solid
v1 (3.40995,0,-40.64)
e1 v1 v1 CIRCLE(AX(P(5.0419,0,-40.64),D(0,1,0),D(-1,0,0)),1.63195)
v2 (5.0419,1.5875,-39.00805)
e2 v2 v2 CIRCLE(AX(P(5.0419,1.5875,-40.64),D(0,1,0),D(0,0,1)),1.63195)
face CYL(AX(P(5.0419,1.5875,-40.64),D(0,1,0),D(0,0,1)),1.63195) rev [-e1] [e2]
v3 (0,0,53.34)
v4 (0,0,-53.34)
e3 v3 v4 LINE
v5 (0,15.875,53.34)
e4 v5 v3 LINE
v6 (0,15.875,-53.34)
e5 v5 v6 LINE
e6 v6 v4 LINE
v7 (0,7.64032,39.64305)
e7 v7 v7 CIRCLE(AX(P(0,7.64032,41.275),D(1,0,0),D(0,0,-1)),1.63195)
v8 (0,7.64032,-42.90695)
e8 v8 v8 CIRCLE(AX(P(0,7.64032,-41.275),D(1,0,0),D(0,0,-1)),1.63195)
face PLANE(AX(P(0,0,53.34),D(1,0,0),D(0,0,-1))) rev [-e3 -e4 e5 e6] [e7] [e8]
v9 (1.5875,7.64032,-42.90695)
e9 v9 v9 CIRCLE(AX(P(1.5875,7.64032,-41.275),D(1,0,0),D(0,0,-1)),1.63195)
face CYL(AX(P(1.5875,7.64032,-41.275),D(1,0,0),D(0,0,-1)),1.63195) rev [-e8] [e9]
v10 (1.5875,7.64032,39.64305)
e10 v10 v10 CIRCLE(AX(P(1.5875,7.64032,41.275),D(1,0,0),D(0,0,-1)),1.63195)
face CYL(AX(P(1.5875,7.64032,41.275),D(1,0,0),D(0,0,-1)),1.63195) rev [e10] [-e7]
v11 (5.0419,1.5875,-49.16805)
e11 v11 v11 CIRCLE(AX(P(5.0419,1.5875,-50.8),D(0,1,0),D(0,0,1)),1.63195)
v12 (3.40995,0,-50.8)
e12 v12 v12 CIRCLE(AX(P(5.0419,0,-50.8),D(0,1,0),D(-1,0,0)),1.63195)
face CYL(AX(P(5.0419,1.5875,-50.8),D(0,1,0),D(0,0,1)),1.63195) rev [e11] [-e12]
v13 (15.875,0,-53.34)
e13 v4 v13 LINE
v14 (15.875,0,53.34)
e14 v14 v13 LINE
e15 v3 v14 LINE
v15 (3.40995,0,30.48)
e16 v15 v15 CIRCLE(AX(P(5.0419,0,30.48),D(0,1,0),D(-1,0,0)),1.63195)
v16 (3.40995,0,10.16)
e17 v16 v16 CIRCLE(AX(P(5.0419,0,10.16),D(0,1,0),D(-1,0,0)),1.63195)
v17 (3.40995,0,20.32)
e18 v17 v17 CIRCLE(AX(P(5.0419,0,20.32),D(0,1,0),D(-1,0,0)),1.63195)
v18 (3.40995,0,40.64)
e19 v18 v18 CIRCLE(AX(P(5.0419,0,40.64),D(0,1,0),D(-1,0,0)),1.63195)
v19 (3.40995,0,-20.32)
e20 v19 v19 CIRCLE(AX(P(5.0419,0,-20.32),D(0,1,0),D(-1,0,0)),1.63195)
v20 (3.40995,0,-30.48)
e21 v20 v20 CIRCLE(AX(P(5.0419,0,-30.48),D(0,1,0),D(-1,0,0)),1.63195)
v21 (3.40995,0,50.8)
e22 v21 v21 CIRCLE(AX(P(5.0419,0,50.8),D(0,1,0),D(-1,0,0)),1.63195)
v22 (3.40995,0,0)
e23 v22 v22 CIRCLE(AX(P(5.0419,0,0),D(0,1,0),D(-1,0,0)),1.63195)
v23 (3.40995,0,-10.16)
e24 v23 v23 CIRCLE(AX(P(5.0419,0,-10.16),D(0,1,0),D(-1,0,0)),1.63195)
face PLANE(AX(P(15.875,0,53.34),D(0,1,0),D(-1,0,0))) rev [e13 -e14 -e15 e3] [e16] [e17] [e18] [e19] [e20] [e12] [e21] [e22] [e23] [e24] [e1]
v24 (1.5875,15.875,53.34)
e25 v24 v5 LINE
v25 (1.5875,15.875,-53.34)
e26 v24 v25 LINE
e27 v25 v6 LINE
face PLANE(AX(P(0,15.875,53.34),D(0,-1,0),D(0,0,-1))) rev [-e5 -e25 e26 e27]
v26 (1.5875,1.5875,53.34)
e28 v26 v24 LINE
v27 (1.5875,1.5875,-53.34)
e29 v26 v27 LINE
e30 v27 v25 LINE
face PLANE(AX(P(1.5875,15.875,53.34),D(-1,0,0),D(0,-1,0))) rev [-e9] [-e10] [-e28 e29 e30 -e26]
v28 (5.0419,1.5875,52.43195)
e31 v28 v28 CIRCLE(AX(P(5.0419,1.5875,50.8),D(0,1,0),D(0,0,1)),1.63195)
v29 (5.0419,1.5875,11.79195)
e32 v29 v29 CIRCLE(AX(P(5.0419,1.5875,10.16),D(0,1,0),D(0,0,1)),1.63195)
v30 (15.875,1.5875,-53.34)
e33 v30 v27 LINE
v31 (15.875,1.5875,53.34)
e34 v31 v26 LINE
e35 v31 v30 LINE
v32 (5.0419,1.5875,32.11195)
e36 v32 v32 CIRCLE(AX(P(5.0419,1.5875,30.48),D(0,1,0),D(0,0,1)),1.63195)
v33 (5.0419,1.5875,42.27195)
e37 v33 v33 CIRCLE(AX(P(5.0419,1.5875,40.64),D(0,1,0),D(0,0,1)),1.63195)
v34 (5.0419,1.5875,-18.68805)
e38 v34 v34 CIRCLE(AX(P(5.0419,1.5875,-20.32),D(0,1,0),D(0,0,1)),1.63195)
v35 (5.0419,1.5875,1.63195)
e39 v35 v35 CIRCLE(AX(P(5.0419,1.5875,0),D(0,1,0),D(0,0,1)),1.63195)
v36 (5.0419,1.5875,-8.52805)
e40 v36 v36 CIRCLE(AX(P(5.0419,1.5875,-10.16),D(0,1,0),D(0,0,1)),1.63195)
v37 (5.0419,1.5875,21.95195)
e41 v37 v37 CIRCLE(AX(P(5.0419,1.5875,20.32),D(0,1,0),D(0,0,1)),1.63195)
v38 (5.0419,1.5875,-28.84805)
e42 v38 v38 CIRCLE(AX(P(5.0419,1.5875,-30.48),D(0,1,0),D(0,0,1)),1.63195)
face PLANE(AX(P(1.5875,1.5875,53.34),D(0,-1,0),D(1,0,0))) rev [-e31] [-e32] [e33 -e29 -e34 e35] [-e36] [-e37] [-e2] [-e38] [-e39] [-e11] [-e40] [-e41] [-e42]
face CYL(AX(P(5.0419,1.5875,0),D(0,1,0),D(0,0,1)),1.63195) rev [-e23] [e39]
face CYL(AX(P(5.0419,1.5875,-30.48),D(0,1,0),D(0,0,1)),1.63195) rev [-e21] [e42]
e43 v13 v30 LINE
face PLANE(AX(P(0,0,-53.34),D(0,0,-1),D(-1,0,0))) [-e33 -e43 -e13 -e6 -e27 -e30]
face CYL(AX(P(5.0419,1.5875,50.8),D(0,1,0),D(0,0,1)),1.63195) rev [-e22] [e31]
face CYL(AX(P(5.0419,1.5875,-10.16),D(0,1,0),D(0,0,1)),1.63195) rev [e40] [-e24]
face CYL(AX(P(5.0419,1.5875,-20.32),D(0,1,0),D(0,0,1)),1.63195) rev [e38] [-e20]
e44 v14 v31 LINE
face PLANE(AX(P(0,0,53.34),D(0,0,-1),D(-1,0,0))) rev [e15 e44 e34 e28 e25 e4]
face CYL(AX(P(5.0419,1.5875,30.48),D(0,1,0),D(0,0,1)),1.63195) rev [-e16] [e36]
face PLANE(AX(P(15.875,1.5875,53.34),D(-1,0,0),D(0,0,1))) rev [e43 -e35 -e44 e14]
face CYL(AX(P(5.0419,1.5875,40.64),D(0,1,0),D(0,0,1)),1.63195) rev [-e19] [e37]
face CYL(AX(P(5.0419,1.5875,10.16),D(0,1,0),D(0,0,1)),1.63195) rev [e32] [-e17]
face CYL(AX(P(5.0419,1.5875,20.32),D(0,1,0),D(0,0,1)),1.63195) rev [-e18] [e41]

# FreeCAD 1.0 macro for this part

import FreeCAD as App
import Part
import Sketcher
Q = App.Units.Quantity


def add_polygon(sketch, points):
    """Adds a closed chain of lines whose ends are joined by coincident constraints."""
    first, n = sketch.GeometryCount, len(points)
    for a, b in zip(points, points[1:] + points[:1]):
        sketch.addGeometry(Part.LineSegment(App.Vector(*a, 0), App.Vector(*b, 0)), False)
    for i in range(n):
        sketch.addConstraint(Sketcher.Constraint("Coincident", first + i, 2, first + (i + 1) % n, 1))

doc = App.newDocument("Part")
body = doc.addObject("PartDesign::Body", "Body")

# Sketch on XY plane
sketch1 = doc.addObject("Sketcher::SketchObject", "Sketch")
body.addObject(sketch1)
sketch1.AttachmentSupport = (doc.XY_Plane, [""])
sketch1.MapMode = "FlatFace"
add_polygon(sketch1, [(0, 15.9), (0, 0), (15.9, 0), (15.9, 1.6), (1.6, 1.6), (1.6, 15.9)])  # lines 0-5
sketch1.addConstraint(Sketcher.Constraint("Vertical", 0))
sketch1.addConstraint(Sketcher.Constraint("Horizontal", 1))
sketch1.addConstraint(Sketcher.Constraint("Vertical", 2))
sketch1.addConstraint(Sketcher.Constraint("Horizontal", 3))
sketch1.addConstraint(Sketcher.Constraint("Vertical", 4))
sketch1.addConstraint(Sketcher.Constraint("Horizontal", 5))
sketch1.addConstraint(Sketcher.Constraint("Coincident", 0, 2, -1, 1))
sketch1.addConstraint(Sketcher.Constraint("Equal", 1, 0))
sketch1.addConstraint(Sketcher.Constraint("Equal", 5, 2))
sketch1.addConstraint(Sketcher.Constraint("DistanceX", 1, 1, 1, 2, Q("0.625 in")))
sketch1.addConstraint(Sketcher.Constraint("DistanceX", 3, 2, 3, 1, Q("0.5625 in")))
pad1 = doc.addObject("PartDesign::Pad", "Pad")
body.addObject(pad1)
pad1.Profile = sketch1
pad1.Length = Q("4.2 in")
pad1.Midplane = True

# Sketch on YZ plane
sketch2 = doc.addObject("Sketcher::SketchObject", "Sketch001")
body.addObject(sketch2)
sketch2.AttachmentSupport = (doc.YZ_Plane, [""])
sketch2.MapMode = "FlatFace"
sketch2.AttachmentOffset = App.Placement(App.Vector(0, 0, 0.1985 * 25.4), App.Rotation())
add_polygon(sketch2, [(-14.6, 0), (1.6, 0), (1.6, 1.6), (-13.7, 1.6)])  # lines 0-3
sketch2.addConstraint(Sketcher.Constraint("Horizontal", 0))
sketch2.addConstraint(Sketcher.Constraint("Vertical", 1))
sketch2.addConstraint(Sketcher.Constraint("Horizontal", 2))
sketch2.addConstraint(Sketcher.Constraint("PointOnObject", 0, 2, -1))
sketch2.addConstraint(Sketcher.Constraint("DistanceX", 2, 2, 2, 1, Q("0.6 in")))
sketch2.addConstraint(Sketcher.Constraint("Angle", 3, Q("-121 deg")))
sketch2.addConstraint(Sketcher.Constraint("DistanceX", -1, 1, 0, 2, Q("0.0625 in")))
sketch2.addConstraint(Sketcher.Constraint("DistanceY", 1, 1, 1, 2, 1.63195))
groove = doc.addObject("PartDesign::Groove", "Groove")
body.addObject(groove)
groove.Profile = sketch2
groove.ReferenceAxis = (sketch2, ["H_Axis"])
groove.Angle = 360
doc.recompute()

linearpattern = doc.addObject("PartDesign::LinearPattern", "LinearPattern")
body.addObject(linearpattern)
linearpattern.Originals = [groove]
linearpattern.Direction = (doc.Z_Axis, [""])
linearpattern.Mode = "offset"
linearpattern.Offset = Q("0.4 in")
linearpattern.Occurrences = 6
body.Tip = linearpattern
doc.recompute()

linearpattern2 = doc.addObject("PartDesign::LinearPattern", "LinearPattern001")
body.addObject(linearpattern2)
linearpattern2.Originals = [groove]
linearpattern2.Direction = (doc.Z_Axis, [""])
linearpattern2.Mode = "offset"
linearpattern2.Offset = Q("0.4 in")
linearpattern2.Occurrences = 6
linearpattern2.Reversed = True
body.Tip = linearpattern2

# Sketch on YZ plane
sketch3 = doc.addObject("Sketcher::SketchObject", "Sketch002")
body.addObject(sketch3)
sketch3.AttachmentSupport = (doc.YZ_Plane, [""])
sketch3.MapMode = "FlatFace"
sketch3.AttachmentOffset = App.Placement(App.Vector(0, 0, 0.0625 * 25.4), App.Rotation())
sketch3.addGeometry(Part.Circle(App.Vector(7.6, -41.3, 0), App.Vector(0, 0, 1), 1.6), False)
sketch3.addGeometry(Part.Circle(App.Vector(7.6, 41.3, 0), App.Vector(0, 0, 1), 1.6), False)
sketch3.addConstraint(Sketcher.Constraint("Equal", 0, 1))
sketch3.addConstraint(Sketcher.Constraint("Symmetric", 0, 3, 1, 3, -1))
sketch3.addConstraint(Sketcher.Constraint("Diameter", 0, Q("0.1285 in")))
sketch3.addConstraint(Sketcher.Constraint("DistanceY", 0, 3, 1, 3, Q("3.25 in")))
sketch3.addConstraint(Sketcher.Constraint("DistanceX", -1, 1, 0, 3, Q("0.3008 in")))
doc.recompute()
hole = doc.addObject("PartDesign::Hole", "Hole")
body.addObject(hole)
hole.Profile = sketch3
hole.ThreadType = "None"
hole.Diameter = Q("0.1285 in")
hole.DepthType = "Dimension"
hole.Depth = Q("0.6 in")
hole.DrillPoint = "Angled"
hole.DrillPointAngle = 118

doc.recompute()
